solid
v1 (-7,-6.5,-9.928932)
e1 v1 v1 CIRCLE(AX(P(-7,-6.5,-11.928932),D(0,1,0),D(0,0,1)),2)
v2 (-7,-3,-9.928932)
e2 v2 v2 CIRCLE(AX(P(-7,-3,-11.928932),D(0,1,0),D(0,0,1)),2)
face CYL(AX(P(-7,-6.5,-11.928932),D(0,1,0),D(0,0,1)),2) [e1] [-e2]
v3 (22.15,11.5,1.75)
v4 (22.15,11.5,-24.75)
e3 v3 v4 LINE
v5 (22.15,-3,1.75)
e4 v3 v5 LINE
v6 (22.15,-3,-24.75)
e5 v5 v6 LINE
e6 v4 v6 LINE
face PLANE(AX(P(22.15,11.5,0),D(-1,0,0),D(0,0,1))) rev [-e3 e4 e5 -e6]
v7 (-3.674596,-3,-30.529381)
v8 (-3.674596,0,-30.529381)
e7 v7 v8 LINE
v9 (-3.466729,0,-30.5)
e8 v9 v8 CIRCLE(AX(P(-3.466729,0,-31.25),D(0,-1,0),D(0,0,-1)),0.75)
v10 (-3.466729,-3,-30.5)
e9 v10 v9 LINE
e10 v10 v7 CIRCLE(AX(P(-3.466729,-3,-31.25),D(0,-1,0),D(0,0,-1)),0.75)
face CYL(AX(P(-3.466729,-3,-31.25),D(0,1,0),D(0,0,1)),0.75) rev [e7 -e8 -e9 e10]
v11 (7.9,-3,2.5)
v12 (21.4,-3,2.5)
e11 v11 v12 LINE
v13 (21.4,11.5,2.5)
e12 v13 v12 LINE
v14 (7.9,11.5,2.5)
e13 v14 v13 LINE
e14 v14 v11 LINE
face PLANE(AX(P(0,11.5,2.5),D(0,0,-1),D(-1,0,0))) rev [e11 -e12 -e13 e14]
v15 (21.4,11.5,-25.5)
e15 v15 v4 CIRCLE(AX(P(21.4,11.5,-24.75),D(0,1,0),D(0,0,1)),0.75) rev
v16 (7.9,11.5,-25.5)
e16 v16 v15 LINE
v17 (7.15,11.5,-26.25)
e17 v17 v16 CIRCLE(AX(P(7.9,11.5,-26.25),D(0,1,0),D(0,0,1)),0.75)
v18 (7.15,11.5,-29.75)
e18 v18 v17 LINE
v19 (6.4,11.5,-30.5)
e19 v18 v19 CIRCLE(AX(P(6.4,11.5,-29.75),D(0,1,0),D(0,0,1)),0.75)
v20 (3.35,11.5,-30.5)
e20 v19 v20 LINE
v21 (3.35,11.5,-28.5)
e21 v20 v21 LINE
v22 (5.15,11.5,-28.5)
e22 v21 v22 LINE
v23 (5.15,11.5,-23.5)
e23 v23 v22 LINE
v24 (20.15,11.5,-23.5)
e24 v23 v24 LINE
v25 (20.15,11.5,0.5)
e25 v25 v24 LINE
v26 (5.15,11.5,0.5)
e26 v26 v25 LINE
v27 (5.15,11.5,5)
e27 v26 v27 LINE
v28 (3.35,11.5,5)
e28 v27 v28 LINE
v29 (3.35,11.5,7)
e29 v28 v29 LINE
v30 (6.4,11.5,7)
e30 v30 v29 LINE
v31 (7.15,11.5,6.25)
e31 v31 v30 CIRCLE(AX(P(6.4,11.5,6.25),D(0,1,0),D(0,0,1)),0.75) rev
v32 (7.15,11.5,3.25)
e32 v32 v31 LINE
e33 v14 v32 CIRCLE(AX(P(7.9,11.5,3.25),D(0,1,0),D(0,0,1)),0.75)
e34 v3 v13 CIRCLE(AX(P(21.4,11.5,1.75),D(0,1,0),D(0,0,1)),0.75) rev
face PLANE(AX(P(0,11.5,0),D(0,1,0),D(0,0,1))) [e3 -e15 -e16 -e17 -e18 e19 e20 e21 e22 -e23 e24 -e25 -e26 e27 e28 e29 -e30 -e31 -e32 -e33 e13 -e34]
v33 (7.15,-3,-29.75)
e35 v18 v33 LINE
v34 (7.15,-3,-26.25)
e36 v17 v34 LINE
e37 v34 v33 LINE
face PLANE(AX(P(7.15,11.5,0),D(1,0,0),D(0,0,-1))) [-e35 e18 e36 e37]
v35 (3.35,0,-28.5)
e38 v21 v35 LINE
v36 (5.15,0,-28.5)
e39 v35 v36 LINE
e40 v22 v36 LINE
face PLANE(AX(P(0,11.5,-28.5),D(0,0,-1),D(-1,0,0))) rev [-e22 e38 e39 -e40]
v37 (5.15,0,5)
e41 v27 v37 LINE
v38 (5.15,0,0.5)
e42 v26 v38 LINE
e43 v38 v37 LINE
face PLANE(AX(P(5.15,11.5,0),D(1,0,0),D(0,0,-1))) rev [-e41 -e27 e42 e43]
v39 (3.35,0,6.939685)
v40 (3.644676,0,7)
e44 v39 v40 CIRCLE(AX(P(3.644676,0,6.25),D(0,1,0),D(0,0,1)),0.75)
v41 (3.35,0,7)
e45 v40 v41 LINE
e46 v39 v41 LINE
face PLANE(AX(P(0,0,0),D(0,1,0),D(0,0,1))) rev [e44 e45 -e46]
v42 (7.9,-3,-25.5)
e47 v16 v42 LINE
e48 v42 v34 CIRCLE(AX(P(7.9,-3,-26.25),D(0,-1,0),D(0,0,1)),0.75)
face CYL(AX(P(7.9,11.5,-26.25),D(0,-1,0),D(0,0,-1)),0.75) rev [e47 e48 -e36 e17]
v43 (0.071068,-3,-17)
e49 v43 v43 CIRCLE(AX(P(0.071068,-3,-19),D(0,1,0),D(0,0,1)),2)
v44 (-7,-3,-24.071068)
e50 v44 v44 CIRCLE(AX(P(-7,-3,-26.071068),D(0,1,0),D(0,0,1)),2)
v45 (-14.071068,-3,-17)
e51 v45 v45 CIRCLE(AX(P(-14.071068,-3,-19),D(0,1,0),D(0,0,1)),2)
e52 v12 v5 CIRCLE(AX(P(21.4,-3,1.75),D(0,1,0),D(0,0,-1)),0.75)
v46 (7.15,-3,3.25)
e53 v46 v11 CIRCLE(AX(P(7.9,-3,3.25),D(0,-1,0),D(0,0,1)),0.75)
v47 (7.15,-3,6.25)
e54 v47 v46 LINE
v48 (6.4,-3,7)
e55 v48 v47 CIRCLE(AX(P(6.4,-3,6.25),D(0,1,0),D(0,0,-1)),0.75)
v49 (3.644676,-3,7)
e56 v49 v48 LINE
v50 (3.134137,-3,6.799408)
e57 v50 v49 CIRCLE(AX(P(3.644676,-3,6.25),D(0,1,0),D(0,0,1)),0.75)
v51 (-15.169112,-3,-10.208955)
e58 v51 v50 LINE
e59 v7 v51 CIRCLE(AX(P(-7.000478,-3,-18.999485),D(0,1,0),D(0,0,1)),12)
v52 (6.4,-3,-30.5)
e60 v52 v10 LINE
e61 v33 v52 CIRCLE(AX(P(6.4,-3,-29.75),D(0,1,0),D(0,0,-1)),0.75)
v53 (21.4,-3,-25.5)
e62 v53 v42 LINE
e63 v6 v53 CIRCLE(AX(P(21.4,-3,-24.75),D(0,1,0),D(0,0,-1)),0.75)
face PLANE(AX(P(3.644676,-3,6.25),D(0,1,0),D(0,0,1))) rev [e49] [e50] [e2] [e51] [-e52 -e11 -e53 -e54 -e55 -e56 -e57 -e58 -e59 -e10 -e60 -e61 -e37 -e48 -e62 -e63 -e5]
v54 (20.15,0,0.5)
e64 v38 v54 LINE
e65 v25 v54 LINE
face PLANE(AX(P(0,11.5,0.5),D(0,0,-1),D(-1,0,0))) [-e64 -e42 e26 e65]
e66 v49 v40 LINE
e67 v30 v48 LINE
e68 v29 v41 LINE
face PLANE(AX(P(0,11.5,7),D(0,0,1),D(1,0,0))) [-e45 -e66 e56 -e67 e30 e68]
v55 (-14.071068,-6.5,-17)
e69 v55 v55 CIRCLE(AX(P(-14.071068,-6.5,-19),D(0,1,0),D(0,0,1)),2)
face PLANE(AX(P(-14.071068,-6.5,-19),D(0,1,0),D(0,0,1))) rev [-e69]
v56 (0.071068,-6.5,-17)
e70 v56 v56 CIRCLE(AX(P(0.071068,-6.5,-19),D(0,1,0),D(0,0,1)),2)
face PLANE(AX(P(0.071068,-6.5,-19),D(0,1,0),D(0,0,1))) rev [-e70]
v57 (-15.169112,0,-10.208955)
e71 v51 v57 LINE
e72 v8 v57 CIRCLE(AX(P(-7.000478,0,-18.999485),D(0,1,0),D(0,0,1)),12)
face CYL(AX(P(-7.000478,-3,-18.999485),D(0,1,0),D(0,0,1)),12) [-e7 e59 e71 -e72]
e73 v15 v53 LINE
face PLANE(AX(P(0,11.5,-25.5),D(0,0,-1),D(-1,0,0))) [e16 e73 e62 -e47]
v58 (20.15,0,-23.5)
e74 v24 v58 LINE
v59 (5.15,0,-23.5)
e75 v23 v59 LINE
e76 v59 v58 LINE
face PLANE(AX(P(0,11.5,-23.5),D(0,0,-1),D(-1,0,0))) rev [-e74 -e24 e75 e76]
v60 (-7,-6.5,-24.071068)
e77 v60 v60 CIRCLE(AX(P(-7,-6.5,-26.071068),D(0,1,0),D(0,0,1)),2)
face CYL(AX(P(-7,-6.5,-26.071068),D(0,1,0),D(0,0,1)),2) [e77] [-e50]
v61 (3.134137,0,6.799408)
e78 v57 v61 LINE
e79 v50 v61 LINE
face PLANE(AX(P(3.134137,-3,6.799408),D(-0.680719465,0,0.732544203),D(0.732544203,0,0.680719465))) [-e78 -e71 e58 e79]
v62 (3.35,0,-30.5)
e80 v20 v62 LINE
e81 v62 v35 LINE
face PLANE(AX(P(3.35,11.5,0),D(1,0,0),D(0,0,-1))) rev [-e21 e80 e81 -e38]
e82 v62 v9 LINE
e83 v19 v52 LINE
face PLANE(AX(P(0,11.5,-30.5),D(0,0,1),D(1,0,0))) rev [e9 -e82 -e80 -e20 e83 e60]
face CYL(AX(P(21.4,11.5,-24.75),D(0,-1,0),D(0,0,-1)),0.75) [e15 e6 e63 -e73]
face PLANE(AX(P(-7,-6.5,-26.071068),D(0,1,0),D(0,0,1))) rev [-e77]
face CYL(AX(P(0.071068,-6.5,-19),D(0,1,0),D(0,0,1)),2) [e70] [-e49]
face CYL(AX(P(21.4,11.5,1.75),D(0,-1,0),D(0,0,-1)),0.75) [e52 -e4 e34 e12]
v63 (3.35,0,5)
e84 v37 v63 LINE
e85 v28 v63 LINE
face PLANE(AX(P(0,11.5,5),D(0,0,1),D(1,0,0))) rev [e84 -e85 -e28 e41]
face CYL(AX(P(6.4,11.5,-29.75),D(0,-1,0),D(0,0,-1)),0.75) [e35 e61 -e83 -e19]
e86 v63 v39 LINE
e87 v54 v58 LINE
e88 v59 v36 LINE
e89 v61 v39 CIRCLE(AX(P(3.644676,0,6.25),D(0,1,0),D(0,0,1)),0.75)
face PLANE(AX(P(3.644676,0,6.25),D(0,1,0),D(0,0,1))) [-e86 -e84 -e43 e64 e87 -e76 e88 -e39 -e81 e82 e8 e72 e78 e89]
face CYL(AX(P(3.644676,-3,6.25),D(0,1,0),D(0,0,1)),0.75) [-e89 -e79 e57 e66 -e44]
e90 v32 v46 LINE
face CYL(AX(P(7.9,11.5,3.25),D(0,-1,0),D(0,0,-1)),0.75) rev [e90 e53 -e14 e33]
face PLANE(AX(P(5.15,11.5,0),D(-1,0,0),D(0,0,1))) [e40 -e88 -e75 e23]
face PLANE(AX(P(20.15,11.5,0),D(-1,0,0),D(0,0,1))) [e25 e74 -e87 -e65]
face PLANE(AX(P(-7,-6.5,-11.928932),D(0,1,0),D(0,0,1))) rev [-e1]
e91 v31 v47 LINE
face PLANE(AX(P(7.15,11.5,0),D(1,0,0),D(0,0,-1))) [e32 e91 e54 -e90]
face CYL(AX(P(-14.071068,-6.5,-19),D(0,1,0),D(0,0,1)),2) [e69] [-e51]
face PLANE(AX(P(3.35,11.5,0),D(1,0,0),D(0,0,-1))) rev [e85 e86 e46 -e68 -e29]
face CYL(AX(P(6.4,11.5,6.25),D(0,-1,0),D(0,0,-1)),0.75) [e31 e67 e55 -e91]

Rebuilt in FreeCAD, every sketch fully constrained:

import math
import FreeCAD as App
import Part
import Sketcher
from FreeCAD import Vector
Q = App.Units.Quantity

doc = App.newDocument("Part")
body = doc.addObject("PartDesign::Body", "Body")

# Sketch on XZ plane
sketch1 = body.newObject("Sketcher::SketchObject", "Sketch")
sketch1.AttachmentSupport = (doc.getObject("XZ_Plane"), [""])
sketch1.MapMode = "FlatFace"
sketch1.addGeometry(Part.LineSegment(Vector(5.15, 5, 0), Vector(3.35, 5, 0)), False)
sketch1.addGeometry(Part.LineSegment(Vector(3.35, 5, 0), Vector(3.35, 7, 0)), False)
sketch1.addGeometry(Part.LineSegment(Vector(3.35, 7, 0), Vector(6.4, 7, 0)), False)
sketch1.addGeometry(Part.ArcOfCircle(Part.Circle(Vector(6.4, 6.25, 0), Vector(0, 0, 1), 0.75), math.radians(0), math.radians(90)), False)
sketch1.addGeometry(Part.LineSegment(Vector(7.15, 6.25, 0), Vector(7.15, 3.25, 0)), False)
sketch1.addGeometry(Part.ArcOfCircle(Part.Circle(Vector(7.9, 3.25, 0), Vector(0, 0, 1), 0.75), math.radians(180), math.radians(270)), False)
sketch1.addGeometry(Part.LineSegment(Vector(7.9, 2.5, 0), Vector(21.4, 2.5, 0)), False)
sketch1.addGeometry(Part.ArcOfCircle(Part.Circle(Vector(21.4, 1.75, 0), Vector(0, 0, 1), 0.75), math.radians(0), math.radians(90)), False)
sketch1.addGeometry(Part.LineSegment(Vector(22.15, 1.75, 0), Vector(22.15, -24.75, 0)), False)
sketch1.addGeometry(Part.ArcOfCircle(Part.Circle(Vector(21.4, -24.75, 0), Vector(0, 0, 1), 0.75), math.radians(-90), math.radians(0)), False)
sketch1.addGeometry(Part.LineSegment(Vector(21.4, -25.5, 0), Vector(7.9, -25.5, 0)), False)
sketch1.addGeometry(Part.ArcOfCircle(Part.Circle(Vector(7.9, -26.25, 0), Vector(0, 0, 1), 0.75), math.radians(90), math.radians(180)), False)
sketch1.addGeometry(Part.LineSegment(Vector(7.15, -26.25, 0), Vector(7.15, -29.75, 0)), False)
sketch1.addGeometry(Part.ArcOfCircle(Part.Circle(Vector(6.4, -29.75, 0), Vector(0, 0, 1), 0.75), math.radians(-90), math.radians(0)), False)
sketch1.addGeometry(Part.LineSegment(Vector(6.4, -30.5, 0), Vector(3.35, -30.5, 0)), False)
sketch1.addGeometry(Part.LineSegment(Vector(3.35, -30.5, 0), Vector(3.35, -28.5, 0)), False)
sketch1.addGeometry(Part.LineSegment(Vector(3.35, -28.5, 0), Vector(5.15, -28.5, 0)), False)
sketch1.addGeometry(Part.LineSegment(Vector(5.15, -28.5, 0), Vector(5.15, -23.5, 0)), False)
sketch1.addGeometry(Part.LineSegment(Vector(5.15, -23.5, 0), Vector(20.15, -23.5, 0)), False)
sketch1.addGeometry(Part.LineSegment(Vector(20.15, -23.5, 0), Vector(20.15, 0.5, 0)), False)
sketch1.addGeometry(Part.LineSegment(Vector(20.15, 0.5, 0), Vector(5.15, 0.5, 0)), False)
sketch1.addGeometry(Part.LineSegment(Vector(5.15, 0.5, 0), Vector(5.15, 5, 0)), False)
sketch1.addConstraint(Sketcher.Constraint("Coincident", 0, 2, 1, 1))
sketch1.addConstraint(Sketcher.Constraint("Coincident", 1, 2, 2, 1))
sketch1.addConstraint(Sketcher.Constraint("Tangent", 2, 2, 3, 2))
sketch1.addConstraint(Sketcher.Constraint("Tangent", 3, 1, 4, 1))
sketch1.addConstraint(Sketcher.Constraint("Tangent", 4, 2, 5, 1))
sketch1.addConstraint(Sketcher.Constraint("Tangent", 5, 2, 6, 1))
sketch1.addConstraint(Sketcher.Constraint("Tangent", 6, 2, 7, 2))
sketch1.addConstraint(Sketcher.Constraint("Tangent", 7, 1, 8, 1))
sketch1.addConstraint(Sketcher.Constraint("Tangent", 8, 2, 9, 2))
sketch1.addConstraint(Sketcher.Constraint("Tangent", 9, 1, 10, 1))
sketch1.addConstraint(Sketcher.Constraint("Tangent", 10, 2, 11, 1))
sketch1.addConstraint(Sketcher.Constraint("Tangent", 11, 2, 12, 1))
sketch1.addConstraint(Sketcher.Constraint("Tangent", 12, 2, 13, 2))
sketch1.addConstraint(Sketcher.Constraint("Tangent", 13, 1, 14, 1))
sketch1.addConstraint(Sketcher.Constraint("Coincident", 14, 2, 15, 1))
sketch1.addConstraint(Sketcher.Constraint("Coincident", 15, 2, 16, 1))
sketch1.addConstraint(Sketcher.Constraint("Coincident", 16, 2, 17, 1))
sketch1.addConstraint(Sketcher.Constraint("Coincident", 17, 2, 18, 1))
sketch1.addConstraint(Sketcher.Constraint("Coincident", 18, 2, 19, 1))
sketch1.addConstraint(Sketcher.Constraint("Coincident", 19, 2, 20, 1))
sketch1.addConstraint(Sketcher.Constraint("Coincident", 20, 2, 21, 1))
sketch1.addConstraint(Sketcher.Constraint("Coincident", 21, 2, 0, 1))
sketch1.addConstraint(Sketcher.Constraint("Horizontal", 0))
sketch1.addConstraint(Sketcher.Constraint("Vertical", 1))
sketch1.addConstraint(Sketcher.Constraint("Horizontal", 2))
sketch1.addConstraint(Sketcher.Constraint("Vertical", 4))
sketch1.addConstraint(Sketcher.Constraint("Horizontal", 6))
sketch1.addConstraint(Sketcher.Constraint("Vertical", 8))
sketch1.addConstraint(Sketcher.Constraint("Horizontal", 10))
sketch1.addConstraint(Sketcher.Constraint("Vertical", 12))
sketch1.addConstraint(Sketcher.Constraint("Horizontal", 14))
sketch1.addConstraint(Sketcher.Constraint("Vertical", 15))
sketch1.addConstraint(Sketcher.Constraint("Horizontal", 16))
sketch1.addConstraint(Sketcher.Constraint("Vertical", 17))
sketch1.addConstraint(Sketcher.Constraint("Horizontal", 18))
sketch1.addConstraint(Sketcher.Constraint("Vertical", 19))
sketch1.addConstraint(Sketcher.Constraint("Horizontal", 20))
sketch1.addConstraint(Sketcher.Constraint("Vertical", 21))
sketch1.addConstraint(Sketcher.Constraint("Equal", 3, 5))
sketch1.addConstraint(Sketcher.Constraint("Equal", 5, 7))
sketch1.addConstraint(Sketcher.Constraint("Equal", 7, 9))
sketch1.addConstraint(Sketcher.Constraint("Equal", 9, 11))
sketch1.addConstraint(Sketcher.Constraint("Equal", 11, 13))
sketch1.addConstraint(Sketcher.Constraint("Vertical", 5, 3, 11, 3))
sketch1.addConstraint(Sketcher.Constraint("Vertical", 1, 2, 14, 2))
sketch1.addConstraint(Sketcher.Constraint("Vertical", 17, 2, 20, 2))
sketch1.addConstraint(Sketcher.Constraint("Equal", 1, 15))
sketch1.addConstraint(Sketcher.Constraint("DistanceX", 18, 1, 18, 2, Q("15 mm")))
sketch1.addConstraint(Sketcher.Constraint("DistanceY", 1, 1, 1, 2, Q("2 mm")))
sketch1.addConstraint(Sketcher.Constraint("DistanceY", 4, 2, 4, 1, Q("3 mm")))
sketch1.addConstraint(Sketcher.Constraint("DistanceY", 17, 1, 17, 2, Q("5 mm")))
sketch1.addConstraint(Sketcher.Constraint("DistanceY", 19, 1, 19, 2, Q("24 mm")))
sketch1.addConstraint(Sketcher.Constraint("Radius", 3, Q("0.75 mm")))
sketch1.addConstraint(Sketcher.Constraint("DistanceX", 0, 2, 0, 1, Q("1.8 mm")))
sketch1.addConstraint(Sketcher.Constraint("DistanceX", 6, 1, 6, 2, Q("13.5 mm")))
sketch1.addConstraint(Sketcher.Constraint("DistanceY", 8, 2, 8, 1, Q("26.5 mm")))
sketch1.addConstraint(Sketcher.Constraint("DistanceY", 12, 2, 12, 1, Q("3.5 mm")))
sketch1.addConstraint(Sketcher.Constraint("DistanceY", -1, 1, 0, 2, Q("5 mm")))
sketch1.addConstraint(Sketcher.Constraint("DistanceX", 16, 2, 12, 2, Q("2 mm")))
sketch1.addConstraint(Sketcher.Constraint("DistanceX", -1, 1, 3, 3, Q("6.4 mm")))
pad1 = body.newObject("PartDesign::Pad", "Pad")
pad1.Profile = sketch1
pad1.Length = 11.5
pad1.Reversed = True

# Sketch on XZ plane
sketch2 = body.newObject("Sketcher::SketchObject", "Sketch001")
sketch2.AttachmentSupport = (doc.getObject("XZ_Plane"), [""])
sketch2.MapMode = "FlatFace"
sketch2.AttachmentOffset = App.Placement(Vector(0, 0, 3), App.Rotation())
sketch2.addGeometry(Part.LineSegment(Vector(-15.169112, -10.208955, 0), Vector(3.134137, 6.799408, 0)), False)
sketch2.addGeometry(Part.ArcOfCircle(Part.Circle(Vector(3.644676, 6.25, 0), Vector(0, 0, 1), 0.75), math.radians(90), math.radians(132.89989)), False)
sketch2.addGeometry(Part.LineSegment(Vector(3.644676, 7, 0), Vector(6.4, 7, 0)), False)
sketch2.addGeometry(Part.ArcOfCircle(Part.Circle(Vector(6.4, 6.25, 0), Vector(0, 0, 1), 0.75), math.radians(0), math.radians(90)), False)
sketch2.addGeometry(Part.LineSegment(Vector(7.15, 6.25, 0), Vector(7.15, 3.25, 0)), False)
sketch2.addGeometry(Part.ArcOfCircle(Part.Circle(Vector(7.9, 3.25, 0), Vector(0, 0, 1), 0.75), math.radians(180), math.radians(270)), False)
sketch2.addGeometry(Part.LineSegment(Vector(7.9, 2.5, 0), Vector(21.4, 2.5, 0)), False)
sketch2.addGeometry(Part.ArcOfCircle(Part.Circle(Vector(21.4, 1.75, 0), Vector(0, 0, 1), 0.75), math.radians(0), math.radians(90)), False)
sketch2.addGeometry(Part.LineSegment(Vector(22.15, 1.75, 0), Vector(22.15, -24.75, 0)), False)
sketch2.addGeometry(Part.ArcOfCircle(Part.Circle(Vector(21.4, -24.75, 0), Vector(0, 0, 1), 0.75), math.radians(-90), math.radians(0)), False)
sketch2.addGeometry(Part.LineSegment(Vector(21.4, -25.5, 0), Vector(7.9, -25.5, 0)), False)
sketch2.addGeometry(Part.ArcOfCircle(Part.Circle(Vector(7.9, -26.25, 0), Vector(0, 0, 1), 0.75), math.radians(90), math.radians(180)), False)
sketch2.addGeometry(Part.LineSegment(Vector(7.15, -26.25, 0), Vector(7.15, -29.75, 0)), False)
sketch2.addGeometry(Part.ArcOfCircle(Part.Circle(Vector(6.4, -29.75, 0), Vector(0, 0, 1), 0.75), math.radians(-90), math.radians(0)), False)
sketch2.addGeometry(Part.LineSegment(Vector(6.4, -30.5, 0), Vector(-3.466729, -30.5, 0)), False)
sketch2.addGeometry(Part.ArcOfCircle(Part.Circle(Vector(-3.466729, -31.25, 0), Vector(0, 0, 1), 0.75), math.radians(90), math.radians(106.090588)), False)
sketch2.addGeometry(Part.ArcOfCircle(Part.Circle(Vector(-7.000478, -18.999485, 0), Vector(0, 0, 1), 12), math.radians(132.89989), math.radians(286.090588)), False)
sketch2.addConstraint(Sketcher.Constraint("Tangent", 0, 2, 1, 2))
sketch2.addConstraint(Sketcher.Constraint("Tangent", 1, 1, 2, 1))
sketch2.addConstraint(Sketcher.Constraint("Tangent", 2, 2, 3, 2))
sketch2.addConstraint(Sketcher.Constraint("Tangent", 3, 1, 4, 1))
sketch2.addConstraint(Sketcher.Constraint("Tangent", 4, 2, 5, 1))
sketch2.addConstraint(Sketcher.Constraint("Tangent", 5, 2, 6, 1))
sketch2.addConstraint(Sketcher.Constraint("Tangent", 6, 2, 7, 2))
sketch2.addConstraint(Sketcher.Constraint("Tangent", 7, 1, 8, 1))
sketch2.addConstraint(Sketcher.Constraint("Tangent", 8, 2, 9, 2))
sketch2.addConstraint(Sketcher.Constraint("Tangent", 9, 1, 10, 1))
sketch2.addConstraint(Sketcher.Constraint("Tangent", 10, 2, 11, 1))
sketch2.addConstraint(Sketcher.Constraint("Tangent", 11, 2, 12, 1))
sketch2.addConstraint(Sketcher.Constraint("Tangent", 12, 2, 13, 2))
sketch2.addConstraint(Sketcher.Constraint("Tangent", 13, 1, 14, 1))
sketch2.addConstraint(Sketcher.Constraint("Tangent", 14, 2, 15, 1))
sketch2.addConstraint(Sketcher.Constraint("Tangent", 15, 2, 16, 2))
sketch2.addConstraint(Sketcher.Constraint("Tangent", 16, 1, 0, 1))
sketch2.addConstraint(Sketcher.Constraint("Horizontal", 2))
sketch2.addConstraint(Sketcher.Constraint("Vertical", 4))
sketch2.addConstraint(Sketcher.Constraint("Horizontal", 6))
sketch2.addConstraint(Sketcher.Constraint("Vertical", 8))
sketch2.addConstraint(Sketcher.Constraint("Horizontal", 10))
sketch2.addConstraint(Sketcher.Constraint("Vertical", 12))
sketch2.addConstraint(Sketcher.Constraint("Horizontal", 14))
sketch2.addConstraint(Sketcher.Constraint("Equal", 1, 3))
sketch2.addConstraint(Sketcher.Constraint("Equal", 3, 5))
sketch2.addConstraint(Sketcher.Constraint("Equal", 5, 7))
sketch2.addConstraint(Sketcher.Constraint("Equal", 7, 9))
sketch2.addConstraint(Sketcher.Constraint("Equal", 9, 11))
sketch2.addConstraint(Sketcher.Constraint("Equal", 11, 13))
sketch2.addConstraint(Sketcher.Constraint("Equal", 13, 15))
sketch2.addConstraint(Sketcher.Constraint("Vertical", 5, 3, 11, 3))
sketch2.addConstraint(Sketcher.Constraint("Radius", 16, Q("12 mm")))
sketch2.addConstraint(Sketcher.Constraint("DistanceY", 4, 2, 4, 1, Q("3 mm")))
sketch2.addConstraint(Sketcher.Constraint("Radius", 1, Q("0.75 mm")))
sketch2.addConstraint(Sketcher.Constraint("DistanceX", 6, 1, 6, 2, Q("13.5 mm")))
sketch2.addConstraint(Sketcher.Constraint("DistanceY", 8, 2, 8, 1, Q("26.5 mm")))
sketch2.addConstraint(Sketcher.Constraint("DistanceY", 12, 2, 12, 1, Q("3.5 mm")))
sketch2.addConstraint(Sketcher.Constraint("DistanceY", -1, 1, 1, 1, Q("7 mm")))
sketch2.addConstraint(Sketcher.Constraint("DistanceX", -1, 1, 3, 3, Q("6.4 mm")))
sketch2.addConstraint(Sketcher.Constraint("DistanceX", 14, 2, 14, 1, Q("9.866729 mm")))
sketch2.addConstraint(Sketcher.Constraint("DistanceX", 2, 1, 2, 2, Q("2.755324 mm")))
sketch2.addConstraint(Sketcher.Constraint("DistanceX", 16, 3, -1, 1, Q("7.000478 mm")))
pad2 = body.newObject("PartDesign::Pad", "Pad001")
pad2.Profile = sketch2
pad2.Length = 3
pad2.Reversed = True

# Sketch on XZ plane
sketch3 = body.newObject("Sketcher::SketchObject", "Sketch002")
sketch3.AttachmentSupport = (doc.getObject("XZ_Plane"), [""])
sketch3.MapMode = "FlatFace"
sketch3.AttachmentOffset = App.Placement(Vector(0, 0, 3), App.Rotation())
sketch3.addGeometry(Part.Circle(Vector(-7, -26.071068, 0), Vector(0, 0, 1), 2), False)
sketch3.addGeometry(Part.Circle(Vector(0.071068, -19, 0), Vector(0, 0, 1), 2), False)
sketch3.addGeometry(Part.Circle(Vector(-7, -11.928932, 0), Vector(0, 0, 1), 2), False)
sketch3.addGeometry(Part.Circle(Vector(-14.071068, -19, 0), Vector(0, 0, 1), 2), False)
sketch3.addConstraint(Sketcher.Constraint("Equal", 0, 1))
sketch3.addConstraint(Sketcher.Constraint("Equal", 1, 2))
sketch3.addConstraint(Sketcher.Constraint("Equal", 2, 3))
sketch3.addConstraint(Sketcher.Constraint("Horizontal", 1, 3, 3, 3))
sketch3.addConstraint(Sketcher.Constraint("Vertical", 0, 3, 2, 3))
sketch3.addConstraint(Sketcher.Constraint("Diameter", 0, Q("4 mm")))
sketch3.addConstraint(Sketcher.Constraint("DistanceX", 0, 3, -1, 1, Q("7 mm")))
sketch3.addConstraint(Sketcher.Constraint("DistanceY", 1, 3, -1, 1, Q("19 mm")))
sketch3.addConstraint(Sketcher.Constraint("DistanceY", 0, 3, -1, 1, Q("26.071068 mm")))
sketch3.addConstraint(Sketcher.Constraint("DistanceX", -1, 1, 1, 3, Q("0.071068 mm")))
sketch3.addConstraint(Sketcher.Constraint("DistanceY", 2, 3, -1, 1, Q("11.928932 mm")))
sketch3.addConstraint(Sketcher.Constraint("DistanceX", 3, 3, -1, 1, Q("14.071068 mm")))
pad3 = body.newObject("PartDesign::Pad", "Pad002")
pad3.Profile = sketch3
pad3.Length = 3.5

doc.recompute()
